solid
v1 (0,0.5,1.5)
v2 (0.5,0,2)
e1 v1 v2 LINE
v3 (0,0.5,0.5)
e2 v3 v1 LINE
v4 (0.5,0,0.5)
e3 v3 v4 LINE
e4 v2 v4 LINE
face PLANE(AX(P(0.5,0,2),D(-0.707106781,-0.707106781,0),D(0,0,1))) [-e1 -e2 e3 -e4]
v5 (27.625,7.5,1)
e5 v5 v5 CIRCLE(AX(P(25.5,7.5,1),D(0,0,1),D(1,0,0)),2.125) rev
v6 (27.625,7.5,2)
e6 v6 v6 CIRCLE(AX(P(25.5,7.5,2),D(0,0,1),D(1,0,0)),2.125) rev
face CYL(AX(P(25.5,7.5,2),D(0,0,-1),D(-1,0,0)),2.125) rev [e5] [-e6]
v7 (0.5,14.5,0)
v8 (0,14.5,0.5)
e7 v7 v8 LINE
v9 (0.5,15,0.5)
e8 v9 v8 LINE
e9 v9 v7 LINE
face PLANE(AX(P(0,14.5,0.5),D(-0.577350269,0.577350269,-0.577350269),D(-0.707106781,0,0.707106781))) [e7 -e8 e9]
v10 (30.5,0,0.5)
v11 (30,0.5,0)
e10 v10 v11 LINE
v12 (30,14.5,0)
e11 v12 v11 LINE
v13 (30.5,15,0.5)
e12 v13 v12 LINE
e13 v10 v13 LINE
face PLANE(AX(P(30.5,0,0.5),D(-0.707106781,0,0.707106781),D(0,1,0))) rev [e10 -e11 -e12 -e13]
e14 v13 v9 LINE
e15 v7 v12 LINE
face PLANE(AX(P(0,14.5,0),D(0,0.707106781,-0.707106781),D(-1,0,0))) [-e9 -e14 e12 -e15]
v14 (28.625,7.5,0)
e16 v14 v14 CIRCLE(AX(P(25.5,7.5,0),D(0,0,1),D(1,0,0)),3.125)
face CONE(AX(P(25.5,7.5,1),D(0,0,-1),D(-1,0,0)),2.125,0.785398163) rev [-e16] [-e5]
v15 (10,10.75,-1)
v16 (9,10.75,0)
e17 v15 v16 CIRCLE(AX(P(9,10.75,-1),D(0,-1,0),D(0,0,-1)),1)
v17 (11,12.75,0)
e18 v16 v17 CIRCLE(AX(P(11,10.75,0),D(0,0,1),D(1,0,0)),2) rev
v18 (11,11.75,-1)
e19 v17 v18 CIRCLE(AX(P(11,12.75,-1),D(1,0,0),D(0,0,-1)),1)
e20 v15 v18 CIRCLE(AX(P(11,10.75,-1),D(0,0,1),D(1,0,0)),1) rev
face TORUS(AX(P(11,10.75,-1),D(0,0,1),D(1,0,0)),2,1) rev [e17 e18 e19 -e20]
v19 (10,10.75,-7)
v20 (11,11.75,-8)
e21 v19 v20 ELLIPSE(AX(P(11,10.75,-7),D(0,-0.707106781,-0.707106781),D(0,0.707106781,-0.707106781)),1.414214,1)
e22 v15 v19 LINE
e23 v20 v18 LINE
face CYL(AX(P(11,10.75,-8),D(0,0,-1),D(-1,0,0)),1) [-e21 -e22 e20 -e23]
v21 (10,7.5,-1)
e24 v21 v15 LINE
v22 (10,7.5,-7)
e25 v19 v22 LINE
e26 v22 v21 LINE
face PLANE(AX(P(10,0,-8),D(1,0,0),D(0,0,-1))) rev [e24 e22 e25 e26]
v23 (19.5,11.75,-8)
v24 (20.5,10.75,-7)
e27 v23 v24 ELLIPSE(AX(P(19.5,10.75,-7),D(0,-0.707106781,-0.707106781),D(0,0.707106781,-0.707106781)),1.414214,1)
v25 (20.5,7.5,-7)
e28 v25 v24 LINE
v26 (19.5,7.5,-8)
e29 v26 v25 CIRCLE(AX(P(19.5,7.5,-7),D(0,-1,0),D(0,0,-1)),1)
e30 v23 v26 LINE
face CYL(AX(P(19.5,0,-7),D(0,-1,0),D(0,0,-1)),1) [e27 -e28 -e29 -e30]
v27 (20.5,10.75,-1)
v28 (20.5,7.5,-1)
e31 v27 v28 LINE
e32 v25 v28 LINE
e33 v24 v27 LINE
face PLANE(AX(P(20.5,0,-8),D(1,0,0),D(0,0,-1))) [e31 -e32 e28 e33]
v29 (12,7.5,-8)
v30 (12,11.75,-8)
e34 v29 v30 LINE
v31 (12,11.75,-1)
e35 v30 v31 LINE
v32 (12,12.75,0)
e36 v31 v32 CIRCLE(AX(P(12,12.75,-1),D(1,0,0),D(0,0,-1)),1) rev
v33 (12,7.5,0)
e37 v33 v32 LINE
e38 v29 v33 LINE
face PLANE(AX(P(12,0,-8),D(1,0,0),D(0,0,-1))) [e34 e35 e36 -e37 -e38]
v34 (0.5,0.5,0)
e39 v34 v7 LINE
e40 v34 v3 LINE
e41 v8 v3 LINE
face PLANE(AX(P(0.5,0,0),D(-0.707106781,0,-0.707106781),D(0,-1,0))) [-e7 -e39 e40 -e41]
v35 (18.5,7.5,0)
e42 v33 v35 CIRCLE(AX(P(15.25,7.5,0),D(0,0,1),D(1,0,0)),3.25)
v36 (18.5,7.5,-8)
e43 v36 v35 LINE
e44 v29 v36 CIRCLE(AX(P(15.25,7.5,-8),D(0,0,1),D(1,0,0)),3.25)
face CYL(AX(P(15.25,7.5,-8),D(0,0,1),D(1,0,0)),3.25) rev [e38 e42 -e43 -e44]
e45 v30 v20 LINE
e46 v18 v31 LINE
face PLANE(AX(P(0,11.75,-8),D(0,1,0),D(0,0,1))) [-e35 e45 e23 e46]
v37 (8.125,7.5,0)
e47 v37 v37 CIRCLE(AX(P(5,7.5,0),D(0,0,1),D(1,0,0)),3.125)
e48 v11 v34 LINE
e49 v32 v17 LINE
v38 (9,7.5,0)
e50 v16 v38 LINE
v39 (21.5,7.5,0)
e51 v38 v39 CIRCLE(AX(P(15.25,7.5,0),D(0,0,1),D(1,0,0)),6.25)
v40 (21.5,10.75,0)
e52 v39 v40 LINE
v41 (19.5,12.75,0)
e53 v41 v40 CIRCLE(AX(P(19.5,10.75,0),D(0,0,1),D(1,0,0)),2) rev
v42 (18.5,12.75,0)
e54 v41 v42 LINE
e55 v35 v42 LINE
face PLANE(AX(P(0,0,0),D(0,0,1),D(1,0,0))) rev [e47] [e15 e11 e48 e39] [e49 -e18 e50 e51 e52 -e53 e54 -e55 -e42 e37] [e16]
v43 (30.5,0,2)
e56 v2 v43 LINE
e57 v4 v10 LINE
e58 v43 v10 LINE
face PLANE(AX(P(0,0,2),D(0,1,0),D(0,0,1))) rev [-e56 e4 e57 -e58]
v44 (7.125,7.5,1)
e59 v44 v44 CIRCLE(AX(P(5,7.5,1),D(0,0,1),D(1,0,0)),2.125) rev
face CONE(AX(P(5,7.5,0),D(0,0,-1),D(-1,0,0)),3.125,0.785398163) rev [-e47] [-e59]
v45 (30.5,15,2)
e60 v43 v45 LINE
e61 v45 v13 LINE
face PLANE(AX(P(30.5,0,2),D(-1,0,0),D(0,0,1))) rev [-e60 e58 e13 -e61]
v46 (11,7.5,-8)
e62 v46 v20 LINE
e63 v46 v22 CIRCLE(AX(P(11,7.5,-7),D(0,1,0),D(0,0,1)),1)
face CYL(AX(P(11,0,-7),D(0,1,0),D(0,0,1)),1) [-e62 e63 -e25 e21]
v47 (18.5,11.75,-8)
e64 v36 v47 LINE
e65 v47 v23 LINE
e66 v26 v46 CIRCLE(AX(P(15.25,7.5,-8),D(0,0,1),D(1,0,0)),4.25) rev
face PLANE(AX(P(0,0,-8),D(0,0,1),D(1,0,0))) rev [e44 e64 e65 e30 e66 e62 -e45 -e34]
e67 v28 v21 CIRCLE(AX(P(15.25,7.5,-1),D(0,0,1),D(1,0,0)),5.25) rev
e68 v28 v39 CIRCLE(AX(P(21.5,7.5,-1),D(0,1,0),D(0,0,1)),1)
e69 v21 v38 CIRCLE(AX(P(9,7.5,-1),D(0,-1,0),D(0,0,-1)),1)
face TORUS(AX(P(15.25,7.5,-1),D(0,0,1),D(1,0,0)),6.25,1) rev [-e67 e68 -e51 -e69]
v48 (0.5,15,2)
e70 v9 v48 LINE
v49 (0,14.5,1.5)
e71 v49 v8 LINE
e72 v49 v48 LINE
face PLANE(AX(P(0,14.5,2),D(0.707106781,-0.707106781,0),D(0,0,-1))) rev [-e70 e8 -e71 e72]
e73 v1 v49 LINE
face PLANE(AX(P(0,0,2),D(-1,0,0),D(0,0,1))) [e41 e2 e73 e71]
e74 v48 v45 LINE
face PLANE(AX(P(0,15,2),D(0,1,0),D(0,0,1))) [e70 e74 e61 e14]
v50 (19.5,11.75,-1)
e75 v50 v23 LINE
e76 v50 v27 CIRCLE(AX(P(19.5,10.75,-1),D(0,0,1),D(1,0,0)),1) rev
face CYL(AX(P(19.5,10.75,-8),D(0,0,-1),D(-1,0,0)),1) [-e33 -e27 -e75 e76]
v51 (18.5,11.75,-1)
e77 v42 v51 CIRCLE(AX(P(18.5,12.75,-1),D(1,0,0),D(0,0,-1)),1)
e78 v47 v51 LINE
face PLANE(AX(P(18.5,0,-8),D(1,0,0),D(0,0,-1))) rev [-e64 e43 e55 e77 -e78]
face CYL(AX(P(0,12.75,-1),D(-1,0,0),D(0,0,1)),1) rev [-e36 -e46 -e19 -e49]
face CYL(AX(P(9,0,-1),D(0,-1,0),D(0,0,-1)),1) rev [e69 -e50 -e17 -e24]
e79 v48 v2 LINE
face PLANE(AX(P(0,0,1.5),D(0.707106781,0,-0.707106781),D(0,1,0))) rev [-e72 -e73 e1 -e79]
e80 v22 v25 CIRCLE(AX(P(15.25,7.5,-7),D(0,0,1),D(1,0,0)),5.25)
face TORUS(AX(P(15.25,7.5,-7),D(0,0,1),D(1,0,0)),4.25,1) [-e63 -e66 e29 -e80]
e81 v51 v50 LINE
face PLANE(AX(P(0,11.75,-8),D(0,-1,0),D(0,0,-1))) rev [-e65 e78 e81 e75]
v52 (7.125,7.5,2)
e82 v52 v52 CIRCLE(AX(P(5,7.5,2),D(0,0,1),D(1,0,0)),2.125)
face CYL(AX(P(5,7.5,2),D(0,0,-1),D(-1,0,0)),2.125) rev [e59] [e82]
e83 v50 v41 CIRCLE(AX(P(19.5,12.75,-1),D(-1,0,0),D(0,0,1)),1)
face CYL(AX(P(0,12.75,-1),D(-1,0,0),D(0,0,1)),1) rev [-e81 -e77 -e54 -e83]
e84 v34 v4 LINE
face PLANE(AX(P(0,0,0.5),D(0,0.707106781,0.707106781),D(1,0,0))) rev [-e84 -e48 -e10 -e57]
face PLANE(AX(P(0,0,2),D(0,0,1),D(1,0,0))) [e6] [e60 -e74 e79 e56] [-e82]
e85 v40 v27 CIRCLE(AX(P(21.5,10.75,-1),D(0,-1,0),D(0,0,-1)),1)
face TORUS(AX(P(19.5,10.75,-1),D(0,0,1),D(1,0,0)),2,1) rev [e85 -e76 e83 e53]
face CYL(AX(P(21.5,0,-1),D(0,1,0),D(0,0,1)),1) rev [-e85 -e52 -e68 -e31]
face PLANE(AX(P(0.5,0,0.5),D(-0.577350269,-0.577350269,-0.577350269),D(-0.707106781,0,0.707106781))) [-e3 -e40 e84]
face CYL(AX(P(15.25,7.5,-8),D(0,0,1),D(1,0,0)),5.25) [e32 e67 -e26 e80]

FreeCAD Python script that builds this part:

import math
import FreeCAD as App
import Part
import Sketcher

V = App.Vector


def edges_at(feature, points):
    """Names of the edges that pass closest to the given points."""
    edges = feature.Shape.Edges
    near = lambda p: min(range(len(edges)), key=lambda i: edges[i].distToShape(Part.Vertex(*p))[0])
    return sorted({f"Edge{near(p) + 1}" for p in points})

doc = App.newDocument("Part")
params = doc.addObject("Spreadsheet::Sheet", "Params")
for row, (alias, value) in enumerate([
    ("sketch1_diameter", "4.25 mm"),
    ("sketch1_height", "15 mm"),
    ("sketch1_width", "30.5 mm"),
    ("pad1_length", "2 mm"),
    ("sketch2_width", "2 mm"),
    ("sketch2_radius", "5.25 mm"),
    ("sketch2_height", "4.25 mm"),
    ("pad2_length", "8 mm"),
    ("fillet_radius", "1 mm"),
    ("chamfer_size", "1 mm"),
    ("chamfer2_size", "0.5 mm"),
], start=1):
    params.set(f"A{row}", alias)
    params.set(f"B{row}", "=" + value)
    params.setAlias(f"B{row}", alias)

body = doc.addObject("PartDesign::Body", "Body")

# Sketch on XY plane
sketch1 = body.newObject("Sketcher::SketchObject", "Sketch")
sketch1.AttachmentSupport = (doc.getObject("XY_Plane"), [""])
sketch1.MapMode = "FlatFace"
sketch1.addGeometry(Part.LineSegment(V(0, 15, 0), V(0, 0, 0)), False)
sketch1.addGeometry(Part.LineSegment(V(0, 0, 0), V(30.5, 0, 0)), False)
sketch1.addGeometry(Part.LineSegment(V(30.5, 0, 0), V(30.5, 15, 0)), False)
sketch1.addGeometry(Part.LineSegment(V(30.5, 15, 0), V(0, 15, 0)), False)
sketch1.addGeometry(Part.Circle(V(5, 7.5, 0), V(0, 0, 1), 2.1), False)
sketch1.addGeometry(Part.Circle(V(25.5, 7.5, 0), V(0, 0, 1), 2.1), False)
sketch1.addConstraint(Sketcher.Constraint("Coincident", 0, 2, 1, 1))
sketch1.addConstraint(Sketcher.Constraint("Coincident", 1, 2, 2, 1))
sketch1.addConstraint(Sketcher.Constraint("Coincident", 2, 2, 3, 1))
sketch1.addConstraint(Sketcher.Constraint("Coincident", 3, 2, 0, 1))
sketch1.addConstraint(Sketcher.Constraint("Vertical", 0))
sketch1.addConstraint(Sketcher.Constraint("Horizontal", 1))
sketch1.addConstraint(Sketcher.Constraint("Vertical", 2))
sketch1.addConstraint(Sketcher.Constraint("Horizontal", 3))
sketch1.addConstraint(Sketcher.Constraint("Coincident", 0, 2, -1, 1))
sketch1.addConstraint(Sketcher.Constraint("Equal", 4, 5))
sketch1.addConstraint(Sketcher.Constraint("Horizontal", 4, 3, 5, 3))
sketch1.addConstraint(Sketcher.Constraint("Diameter", 4, 4.25))
sketch1.addConstraint(Sketcher.Constraint("DistanceY", 0, 2, 0, 1, 15.0))
sketch1.addConstraint(Sketcher.Constraint("DistanceX", 1, 1, 1, 2, 30.5))
sketch1.addConstraint(Sketcher.Constraint("DistanceX", -1, 1, 4, 3, 5.0))
sketch1.addConstraint(Sketcher.Constraint("DistanceX", 5, 3, 1, 2, 5.0))
sketch1.addConstraint(Sketcher.Constraint("DistanceY", -1, 1, 4, 3, 7.5))
sketch1.setExpression("Constraints[11]", "Params.sketch1_diameter")
sketch1.setExpression("Constraints[12]", "Params.sketch1_height")
sketch1.setExpression("Constraints[13]", "Params.sketch1_width")
pad1 = body.newObject("PartDesign::Pad", "Pad")
pad1.Profile = sketch1
pad1.setExpression("Length", "Params.pad1_length")

# Sketch on XY plane
sketch2 = body.newObject("Sketcher::SketchObject", "Sketch001")
sketch2.AttachmentSupport = (doc.getObject("XY_Plane"), [""])
sketch2.MapMode = "FlatFace"
sketch2.addGeometry(Part.LineSegment(V(12, 7.5, 0), V(12, 11.8, 0)), False)
sketch2.addGeometry(Part.LineSegment(V(12, 11.8, 0), V(10, 11.8, 0)), False)
sketch2.addGeometry(Part.LineSegment(V(10, 11.8, 0), V(10, 7.5, 0)), False)
sketch2.addGeometry(Part.ArcOfCircle(Part.Circle(V(15.2, 7.5, 0), V(0, 0, 1), 5.2), math.radians(180), math.radians(360)), False)
sketch2.addGeometry(Part.LineSegment(V(20.5, 7.5, 0), V(20.5, 11.8, 0)), False)
sketch2.addGeometry(Part.LineSegment(V(20.5, 11.8, 0), V(18.5, 11.8, 0)), False)
sketch2.addGeometry(Part.LineSegment(V(18.5, 11.8, 0), V(18.5, 7.5, 0)), False)
sketch2.addGeometry(Part.ArcOfCircle(Part.Circle(V(15.2, 7.5, 0), V(0, 0, 1), 3.2), math.radians(180), math.radians(360)), False)
sketch2.addConstraint(Sketcher.Constraint("Coincident", 0, 2, 1, 1))
sketch2.addConstraint(Sketcher.Constraint("Coincident", 1, 2, 2, 1))
sketch2.addConstraint(Sketcher.Constraint("Tangent", 2, 2, 3, 1))
sketch2.addConstraint(Sketcher.Constraint("Tangent", 3, 2, 4, 1))
sketch2.addConstraint(Sketcher.Constraint("Coincident", 4, 2, 5, 1))
sketch2.addConstraint(Sketcher.Constraint("Coincident", 5, 2, 6, 1))
sketch2.addConstraint(Sketcher.Constraint("Tangent", 6, 2, 7, 2))
sketch2.addConstraint(Sketcher.Constraint("Tangent", 7, 1, 0, 1))
sketch2.addConstraint(Sketcher.Constraint("Vertical", 0))
sketch2.addConstraint(Sketcher.Constraint("Horizontal", 1))
sketch2.addConstraint(Sketcher.Constraint("Vertical", 2))
sketch2.addConstraint(Sketcher.Constraint("Vertical", 4))
sketch2.addConstraint(Sketcher.Constraint("Horizontal", 5))
sketch2.addConstraint(Sketcher.Constraint("Vertical", 6))
sketch2.addConstraint(Sketcher.Constraint("Coincident", 7, 3, 3, 3))
sketch2.addConstraint(Sketcher.Constraint("Horizontal", 1, 2, 4, 2))
sketch2.addConstraint(Sketcher.Constraint("DistanceX", 1, 2, 1, 1, 2.0))
sketch2.addConstraint(Sketcher.Constraint("Radius", 3, 5.25))
sketch2.addConstraint(Sketcher.Constraint("DistanceX", -1, 1, 0, 2, 12.0))
sketch2.addConstraint(Sketcher.Constraint("DistanceY", 0, 1, 0, 2, 4.25))
sketch2.addConstraint(Sketcher.Constraint("DistanceY", -1, 1, 3, 3, 7.5))
sketch2.setExpression("Constraints[16]", "Params.sketch2_width")
sketch2.setExpression("Constraints[17]", "Params.sketch2_radius")
sketch2.setExpression("Constraints[19]", "Params.sketch2_height")
pad2 = body.newObject("PartDesign::Pad", "Pad001")
pad2.Profile = sketch2
pad2.setExpression("Length", "Params.pad2_length")
pad2.Reversed = True
doc.recompute()

fillet = body.newObject("PartDesign::Fillet", "Fillet")
fillet.Base = (pad2, edges_at(pad2, [
    (10, 9.625, 0),
    (10, 11.75, -4),
    (19.5, 11.75, 0),
    (20.5, 9.625, -8),
    (20.5, 11.75, -4),
    (15.25, 2.25, -8),
    (10, 9.625, -8),
    (15.25, 2.25, 0),
    (20.5, 9.625, 0),
    (11, 11.75, 0),
]))
fillet.setExpression("Radius", "Params.fillet_radius")
doc.recompute()

chamfer = body.newObject("PartDesign::Chamfer", "Chamfer")
chamfer.Base = (fillet, edges_at(fillet, [(23.375, 7.5, 0), (2.875, 7.5, 0)]))
chamfer.setExpression("Size", "Params.chamfer_size")
doc.recompute()

chamfer2 = body.newObject("PartDesign::Chamfer", "Chamfer001")
chamfer2.Base = (chamfer, edges_at(chamfer, [
    (0, 0, 1),
    (0, 15, 1),
    (0, 7.5, 2),
    (0, 7.5, 0),
    (15.25, 15, 0),
    (30.5, 7.5, 0),
    (15.25, 0, 0),
]))
chamfer2.setExpression("Size", "Params.chamfer2_size")

doc.recompute()
